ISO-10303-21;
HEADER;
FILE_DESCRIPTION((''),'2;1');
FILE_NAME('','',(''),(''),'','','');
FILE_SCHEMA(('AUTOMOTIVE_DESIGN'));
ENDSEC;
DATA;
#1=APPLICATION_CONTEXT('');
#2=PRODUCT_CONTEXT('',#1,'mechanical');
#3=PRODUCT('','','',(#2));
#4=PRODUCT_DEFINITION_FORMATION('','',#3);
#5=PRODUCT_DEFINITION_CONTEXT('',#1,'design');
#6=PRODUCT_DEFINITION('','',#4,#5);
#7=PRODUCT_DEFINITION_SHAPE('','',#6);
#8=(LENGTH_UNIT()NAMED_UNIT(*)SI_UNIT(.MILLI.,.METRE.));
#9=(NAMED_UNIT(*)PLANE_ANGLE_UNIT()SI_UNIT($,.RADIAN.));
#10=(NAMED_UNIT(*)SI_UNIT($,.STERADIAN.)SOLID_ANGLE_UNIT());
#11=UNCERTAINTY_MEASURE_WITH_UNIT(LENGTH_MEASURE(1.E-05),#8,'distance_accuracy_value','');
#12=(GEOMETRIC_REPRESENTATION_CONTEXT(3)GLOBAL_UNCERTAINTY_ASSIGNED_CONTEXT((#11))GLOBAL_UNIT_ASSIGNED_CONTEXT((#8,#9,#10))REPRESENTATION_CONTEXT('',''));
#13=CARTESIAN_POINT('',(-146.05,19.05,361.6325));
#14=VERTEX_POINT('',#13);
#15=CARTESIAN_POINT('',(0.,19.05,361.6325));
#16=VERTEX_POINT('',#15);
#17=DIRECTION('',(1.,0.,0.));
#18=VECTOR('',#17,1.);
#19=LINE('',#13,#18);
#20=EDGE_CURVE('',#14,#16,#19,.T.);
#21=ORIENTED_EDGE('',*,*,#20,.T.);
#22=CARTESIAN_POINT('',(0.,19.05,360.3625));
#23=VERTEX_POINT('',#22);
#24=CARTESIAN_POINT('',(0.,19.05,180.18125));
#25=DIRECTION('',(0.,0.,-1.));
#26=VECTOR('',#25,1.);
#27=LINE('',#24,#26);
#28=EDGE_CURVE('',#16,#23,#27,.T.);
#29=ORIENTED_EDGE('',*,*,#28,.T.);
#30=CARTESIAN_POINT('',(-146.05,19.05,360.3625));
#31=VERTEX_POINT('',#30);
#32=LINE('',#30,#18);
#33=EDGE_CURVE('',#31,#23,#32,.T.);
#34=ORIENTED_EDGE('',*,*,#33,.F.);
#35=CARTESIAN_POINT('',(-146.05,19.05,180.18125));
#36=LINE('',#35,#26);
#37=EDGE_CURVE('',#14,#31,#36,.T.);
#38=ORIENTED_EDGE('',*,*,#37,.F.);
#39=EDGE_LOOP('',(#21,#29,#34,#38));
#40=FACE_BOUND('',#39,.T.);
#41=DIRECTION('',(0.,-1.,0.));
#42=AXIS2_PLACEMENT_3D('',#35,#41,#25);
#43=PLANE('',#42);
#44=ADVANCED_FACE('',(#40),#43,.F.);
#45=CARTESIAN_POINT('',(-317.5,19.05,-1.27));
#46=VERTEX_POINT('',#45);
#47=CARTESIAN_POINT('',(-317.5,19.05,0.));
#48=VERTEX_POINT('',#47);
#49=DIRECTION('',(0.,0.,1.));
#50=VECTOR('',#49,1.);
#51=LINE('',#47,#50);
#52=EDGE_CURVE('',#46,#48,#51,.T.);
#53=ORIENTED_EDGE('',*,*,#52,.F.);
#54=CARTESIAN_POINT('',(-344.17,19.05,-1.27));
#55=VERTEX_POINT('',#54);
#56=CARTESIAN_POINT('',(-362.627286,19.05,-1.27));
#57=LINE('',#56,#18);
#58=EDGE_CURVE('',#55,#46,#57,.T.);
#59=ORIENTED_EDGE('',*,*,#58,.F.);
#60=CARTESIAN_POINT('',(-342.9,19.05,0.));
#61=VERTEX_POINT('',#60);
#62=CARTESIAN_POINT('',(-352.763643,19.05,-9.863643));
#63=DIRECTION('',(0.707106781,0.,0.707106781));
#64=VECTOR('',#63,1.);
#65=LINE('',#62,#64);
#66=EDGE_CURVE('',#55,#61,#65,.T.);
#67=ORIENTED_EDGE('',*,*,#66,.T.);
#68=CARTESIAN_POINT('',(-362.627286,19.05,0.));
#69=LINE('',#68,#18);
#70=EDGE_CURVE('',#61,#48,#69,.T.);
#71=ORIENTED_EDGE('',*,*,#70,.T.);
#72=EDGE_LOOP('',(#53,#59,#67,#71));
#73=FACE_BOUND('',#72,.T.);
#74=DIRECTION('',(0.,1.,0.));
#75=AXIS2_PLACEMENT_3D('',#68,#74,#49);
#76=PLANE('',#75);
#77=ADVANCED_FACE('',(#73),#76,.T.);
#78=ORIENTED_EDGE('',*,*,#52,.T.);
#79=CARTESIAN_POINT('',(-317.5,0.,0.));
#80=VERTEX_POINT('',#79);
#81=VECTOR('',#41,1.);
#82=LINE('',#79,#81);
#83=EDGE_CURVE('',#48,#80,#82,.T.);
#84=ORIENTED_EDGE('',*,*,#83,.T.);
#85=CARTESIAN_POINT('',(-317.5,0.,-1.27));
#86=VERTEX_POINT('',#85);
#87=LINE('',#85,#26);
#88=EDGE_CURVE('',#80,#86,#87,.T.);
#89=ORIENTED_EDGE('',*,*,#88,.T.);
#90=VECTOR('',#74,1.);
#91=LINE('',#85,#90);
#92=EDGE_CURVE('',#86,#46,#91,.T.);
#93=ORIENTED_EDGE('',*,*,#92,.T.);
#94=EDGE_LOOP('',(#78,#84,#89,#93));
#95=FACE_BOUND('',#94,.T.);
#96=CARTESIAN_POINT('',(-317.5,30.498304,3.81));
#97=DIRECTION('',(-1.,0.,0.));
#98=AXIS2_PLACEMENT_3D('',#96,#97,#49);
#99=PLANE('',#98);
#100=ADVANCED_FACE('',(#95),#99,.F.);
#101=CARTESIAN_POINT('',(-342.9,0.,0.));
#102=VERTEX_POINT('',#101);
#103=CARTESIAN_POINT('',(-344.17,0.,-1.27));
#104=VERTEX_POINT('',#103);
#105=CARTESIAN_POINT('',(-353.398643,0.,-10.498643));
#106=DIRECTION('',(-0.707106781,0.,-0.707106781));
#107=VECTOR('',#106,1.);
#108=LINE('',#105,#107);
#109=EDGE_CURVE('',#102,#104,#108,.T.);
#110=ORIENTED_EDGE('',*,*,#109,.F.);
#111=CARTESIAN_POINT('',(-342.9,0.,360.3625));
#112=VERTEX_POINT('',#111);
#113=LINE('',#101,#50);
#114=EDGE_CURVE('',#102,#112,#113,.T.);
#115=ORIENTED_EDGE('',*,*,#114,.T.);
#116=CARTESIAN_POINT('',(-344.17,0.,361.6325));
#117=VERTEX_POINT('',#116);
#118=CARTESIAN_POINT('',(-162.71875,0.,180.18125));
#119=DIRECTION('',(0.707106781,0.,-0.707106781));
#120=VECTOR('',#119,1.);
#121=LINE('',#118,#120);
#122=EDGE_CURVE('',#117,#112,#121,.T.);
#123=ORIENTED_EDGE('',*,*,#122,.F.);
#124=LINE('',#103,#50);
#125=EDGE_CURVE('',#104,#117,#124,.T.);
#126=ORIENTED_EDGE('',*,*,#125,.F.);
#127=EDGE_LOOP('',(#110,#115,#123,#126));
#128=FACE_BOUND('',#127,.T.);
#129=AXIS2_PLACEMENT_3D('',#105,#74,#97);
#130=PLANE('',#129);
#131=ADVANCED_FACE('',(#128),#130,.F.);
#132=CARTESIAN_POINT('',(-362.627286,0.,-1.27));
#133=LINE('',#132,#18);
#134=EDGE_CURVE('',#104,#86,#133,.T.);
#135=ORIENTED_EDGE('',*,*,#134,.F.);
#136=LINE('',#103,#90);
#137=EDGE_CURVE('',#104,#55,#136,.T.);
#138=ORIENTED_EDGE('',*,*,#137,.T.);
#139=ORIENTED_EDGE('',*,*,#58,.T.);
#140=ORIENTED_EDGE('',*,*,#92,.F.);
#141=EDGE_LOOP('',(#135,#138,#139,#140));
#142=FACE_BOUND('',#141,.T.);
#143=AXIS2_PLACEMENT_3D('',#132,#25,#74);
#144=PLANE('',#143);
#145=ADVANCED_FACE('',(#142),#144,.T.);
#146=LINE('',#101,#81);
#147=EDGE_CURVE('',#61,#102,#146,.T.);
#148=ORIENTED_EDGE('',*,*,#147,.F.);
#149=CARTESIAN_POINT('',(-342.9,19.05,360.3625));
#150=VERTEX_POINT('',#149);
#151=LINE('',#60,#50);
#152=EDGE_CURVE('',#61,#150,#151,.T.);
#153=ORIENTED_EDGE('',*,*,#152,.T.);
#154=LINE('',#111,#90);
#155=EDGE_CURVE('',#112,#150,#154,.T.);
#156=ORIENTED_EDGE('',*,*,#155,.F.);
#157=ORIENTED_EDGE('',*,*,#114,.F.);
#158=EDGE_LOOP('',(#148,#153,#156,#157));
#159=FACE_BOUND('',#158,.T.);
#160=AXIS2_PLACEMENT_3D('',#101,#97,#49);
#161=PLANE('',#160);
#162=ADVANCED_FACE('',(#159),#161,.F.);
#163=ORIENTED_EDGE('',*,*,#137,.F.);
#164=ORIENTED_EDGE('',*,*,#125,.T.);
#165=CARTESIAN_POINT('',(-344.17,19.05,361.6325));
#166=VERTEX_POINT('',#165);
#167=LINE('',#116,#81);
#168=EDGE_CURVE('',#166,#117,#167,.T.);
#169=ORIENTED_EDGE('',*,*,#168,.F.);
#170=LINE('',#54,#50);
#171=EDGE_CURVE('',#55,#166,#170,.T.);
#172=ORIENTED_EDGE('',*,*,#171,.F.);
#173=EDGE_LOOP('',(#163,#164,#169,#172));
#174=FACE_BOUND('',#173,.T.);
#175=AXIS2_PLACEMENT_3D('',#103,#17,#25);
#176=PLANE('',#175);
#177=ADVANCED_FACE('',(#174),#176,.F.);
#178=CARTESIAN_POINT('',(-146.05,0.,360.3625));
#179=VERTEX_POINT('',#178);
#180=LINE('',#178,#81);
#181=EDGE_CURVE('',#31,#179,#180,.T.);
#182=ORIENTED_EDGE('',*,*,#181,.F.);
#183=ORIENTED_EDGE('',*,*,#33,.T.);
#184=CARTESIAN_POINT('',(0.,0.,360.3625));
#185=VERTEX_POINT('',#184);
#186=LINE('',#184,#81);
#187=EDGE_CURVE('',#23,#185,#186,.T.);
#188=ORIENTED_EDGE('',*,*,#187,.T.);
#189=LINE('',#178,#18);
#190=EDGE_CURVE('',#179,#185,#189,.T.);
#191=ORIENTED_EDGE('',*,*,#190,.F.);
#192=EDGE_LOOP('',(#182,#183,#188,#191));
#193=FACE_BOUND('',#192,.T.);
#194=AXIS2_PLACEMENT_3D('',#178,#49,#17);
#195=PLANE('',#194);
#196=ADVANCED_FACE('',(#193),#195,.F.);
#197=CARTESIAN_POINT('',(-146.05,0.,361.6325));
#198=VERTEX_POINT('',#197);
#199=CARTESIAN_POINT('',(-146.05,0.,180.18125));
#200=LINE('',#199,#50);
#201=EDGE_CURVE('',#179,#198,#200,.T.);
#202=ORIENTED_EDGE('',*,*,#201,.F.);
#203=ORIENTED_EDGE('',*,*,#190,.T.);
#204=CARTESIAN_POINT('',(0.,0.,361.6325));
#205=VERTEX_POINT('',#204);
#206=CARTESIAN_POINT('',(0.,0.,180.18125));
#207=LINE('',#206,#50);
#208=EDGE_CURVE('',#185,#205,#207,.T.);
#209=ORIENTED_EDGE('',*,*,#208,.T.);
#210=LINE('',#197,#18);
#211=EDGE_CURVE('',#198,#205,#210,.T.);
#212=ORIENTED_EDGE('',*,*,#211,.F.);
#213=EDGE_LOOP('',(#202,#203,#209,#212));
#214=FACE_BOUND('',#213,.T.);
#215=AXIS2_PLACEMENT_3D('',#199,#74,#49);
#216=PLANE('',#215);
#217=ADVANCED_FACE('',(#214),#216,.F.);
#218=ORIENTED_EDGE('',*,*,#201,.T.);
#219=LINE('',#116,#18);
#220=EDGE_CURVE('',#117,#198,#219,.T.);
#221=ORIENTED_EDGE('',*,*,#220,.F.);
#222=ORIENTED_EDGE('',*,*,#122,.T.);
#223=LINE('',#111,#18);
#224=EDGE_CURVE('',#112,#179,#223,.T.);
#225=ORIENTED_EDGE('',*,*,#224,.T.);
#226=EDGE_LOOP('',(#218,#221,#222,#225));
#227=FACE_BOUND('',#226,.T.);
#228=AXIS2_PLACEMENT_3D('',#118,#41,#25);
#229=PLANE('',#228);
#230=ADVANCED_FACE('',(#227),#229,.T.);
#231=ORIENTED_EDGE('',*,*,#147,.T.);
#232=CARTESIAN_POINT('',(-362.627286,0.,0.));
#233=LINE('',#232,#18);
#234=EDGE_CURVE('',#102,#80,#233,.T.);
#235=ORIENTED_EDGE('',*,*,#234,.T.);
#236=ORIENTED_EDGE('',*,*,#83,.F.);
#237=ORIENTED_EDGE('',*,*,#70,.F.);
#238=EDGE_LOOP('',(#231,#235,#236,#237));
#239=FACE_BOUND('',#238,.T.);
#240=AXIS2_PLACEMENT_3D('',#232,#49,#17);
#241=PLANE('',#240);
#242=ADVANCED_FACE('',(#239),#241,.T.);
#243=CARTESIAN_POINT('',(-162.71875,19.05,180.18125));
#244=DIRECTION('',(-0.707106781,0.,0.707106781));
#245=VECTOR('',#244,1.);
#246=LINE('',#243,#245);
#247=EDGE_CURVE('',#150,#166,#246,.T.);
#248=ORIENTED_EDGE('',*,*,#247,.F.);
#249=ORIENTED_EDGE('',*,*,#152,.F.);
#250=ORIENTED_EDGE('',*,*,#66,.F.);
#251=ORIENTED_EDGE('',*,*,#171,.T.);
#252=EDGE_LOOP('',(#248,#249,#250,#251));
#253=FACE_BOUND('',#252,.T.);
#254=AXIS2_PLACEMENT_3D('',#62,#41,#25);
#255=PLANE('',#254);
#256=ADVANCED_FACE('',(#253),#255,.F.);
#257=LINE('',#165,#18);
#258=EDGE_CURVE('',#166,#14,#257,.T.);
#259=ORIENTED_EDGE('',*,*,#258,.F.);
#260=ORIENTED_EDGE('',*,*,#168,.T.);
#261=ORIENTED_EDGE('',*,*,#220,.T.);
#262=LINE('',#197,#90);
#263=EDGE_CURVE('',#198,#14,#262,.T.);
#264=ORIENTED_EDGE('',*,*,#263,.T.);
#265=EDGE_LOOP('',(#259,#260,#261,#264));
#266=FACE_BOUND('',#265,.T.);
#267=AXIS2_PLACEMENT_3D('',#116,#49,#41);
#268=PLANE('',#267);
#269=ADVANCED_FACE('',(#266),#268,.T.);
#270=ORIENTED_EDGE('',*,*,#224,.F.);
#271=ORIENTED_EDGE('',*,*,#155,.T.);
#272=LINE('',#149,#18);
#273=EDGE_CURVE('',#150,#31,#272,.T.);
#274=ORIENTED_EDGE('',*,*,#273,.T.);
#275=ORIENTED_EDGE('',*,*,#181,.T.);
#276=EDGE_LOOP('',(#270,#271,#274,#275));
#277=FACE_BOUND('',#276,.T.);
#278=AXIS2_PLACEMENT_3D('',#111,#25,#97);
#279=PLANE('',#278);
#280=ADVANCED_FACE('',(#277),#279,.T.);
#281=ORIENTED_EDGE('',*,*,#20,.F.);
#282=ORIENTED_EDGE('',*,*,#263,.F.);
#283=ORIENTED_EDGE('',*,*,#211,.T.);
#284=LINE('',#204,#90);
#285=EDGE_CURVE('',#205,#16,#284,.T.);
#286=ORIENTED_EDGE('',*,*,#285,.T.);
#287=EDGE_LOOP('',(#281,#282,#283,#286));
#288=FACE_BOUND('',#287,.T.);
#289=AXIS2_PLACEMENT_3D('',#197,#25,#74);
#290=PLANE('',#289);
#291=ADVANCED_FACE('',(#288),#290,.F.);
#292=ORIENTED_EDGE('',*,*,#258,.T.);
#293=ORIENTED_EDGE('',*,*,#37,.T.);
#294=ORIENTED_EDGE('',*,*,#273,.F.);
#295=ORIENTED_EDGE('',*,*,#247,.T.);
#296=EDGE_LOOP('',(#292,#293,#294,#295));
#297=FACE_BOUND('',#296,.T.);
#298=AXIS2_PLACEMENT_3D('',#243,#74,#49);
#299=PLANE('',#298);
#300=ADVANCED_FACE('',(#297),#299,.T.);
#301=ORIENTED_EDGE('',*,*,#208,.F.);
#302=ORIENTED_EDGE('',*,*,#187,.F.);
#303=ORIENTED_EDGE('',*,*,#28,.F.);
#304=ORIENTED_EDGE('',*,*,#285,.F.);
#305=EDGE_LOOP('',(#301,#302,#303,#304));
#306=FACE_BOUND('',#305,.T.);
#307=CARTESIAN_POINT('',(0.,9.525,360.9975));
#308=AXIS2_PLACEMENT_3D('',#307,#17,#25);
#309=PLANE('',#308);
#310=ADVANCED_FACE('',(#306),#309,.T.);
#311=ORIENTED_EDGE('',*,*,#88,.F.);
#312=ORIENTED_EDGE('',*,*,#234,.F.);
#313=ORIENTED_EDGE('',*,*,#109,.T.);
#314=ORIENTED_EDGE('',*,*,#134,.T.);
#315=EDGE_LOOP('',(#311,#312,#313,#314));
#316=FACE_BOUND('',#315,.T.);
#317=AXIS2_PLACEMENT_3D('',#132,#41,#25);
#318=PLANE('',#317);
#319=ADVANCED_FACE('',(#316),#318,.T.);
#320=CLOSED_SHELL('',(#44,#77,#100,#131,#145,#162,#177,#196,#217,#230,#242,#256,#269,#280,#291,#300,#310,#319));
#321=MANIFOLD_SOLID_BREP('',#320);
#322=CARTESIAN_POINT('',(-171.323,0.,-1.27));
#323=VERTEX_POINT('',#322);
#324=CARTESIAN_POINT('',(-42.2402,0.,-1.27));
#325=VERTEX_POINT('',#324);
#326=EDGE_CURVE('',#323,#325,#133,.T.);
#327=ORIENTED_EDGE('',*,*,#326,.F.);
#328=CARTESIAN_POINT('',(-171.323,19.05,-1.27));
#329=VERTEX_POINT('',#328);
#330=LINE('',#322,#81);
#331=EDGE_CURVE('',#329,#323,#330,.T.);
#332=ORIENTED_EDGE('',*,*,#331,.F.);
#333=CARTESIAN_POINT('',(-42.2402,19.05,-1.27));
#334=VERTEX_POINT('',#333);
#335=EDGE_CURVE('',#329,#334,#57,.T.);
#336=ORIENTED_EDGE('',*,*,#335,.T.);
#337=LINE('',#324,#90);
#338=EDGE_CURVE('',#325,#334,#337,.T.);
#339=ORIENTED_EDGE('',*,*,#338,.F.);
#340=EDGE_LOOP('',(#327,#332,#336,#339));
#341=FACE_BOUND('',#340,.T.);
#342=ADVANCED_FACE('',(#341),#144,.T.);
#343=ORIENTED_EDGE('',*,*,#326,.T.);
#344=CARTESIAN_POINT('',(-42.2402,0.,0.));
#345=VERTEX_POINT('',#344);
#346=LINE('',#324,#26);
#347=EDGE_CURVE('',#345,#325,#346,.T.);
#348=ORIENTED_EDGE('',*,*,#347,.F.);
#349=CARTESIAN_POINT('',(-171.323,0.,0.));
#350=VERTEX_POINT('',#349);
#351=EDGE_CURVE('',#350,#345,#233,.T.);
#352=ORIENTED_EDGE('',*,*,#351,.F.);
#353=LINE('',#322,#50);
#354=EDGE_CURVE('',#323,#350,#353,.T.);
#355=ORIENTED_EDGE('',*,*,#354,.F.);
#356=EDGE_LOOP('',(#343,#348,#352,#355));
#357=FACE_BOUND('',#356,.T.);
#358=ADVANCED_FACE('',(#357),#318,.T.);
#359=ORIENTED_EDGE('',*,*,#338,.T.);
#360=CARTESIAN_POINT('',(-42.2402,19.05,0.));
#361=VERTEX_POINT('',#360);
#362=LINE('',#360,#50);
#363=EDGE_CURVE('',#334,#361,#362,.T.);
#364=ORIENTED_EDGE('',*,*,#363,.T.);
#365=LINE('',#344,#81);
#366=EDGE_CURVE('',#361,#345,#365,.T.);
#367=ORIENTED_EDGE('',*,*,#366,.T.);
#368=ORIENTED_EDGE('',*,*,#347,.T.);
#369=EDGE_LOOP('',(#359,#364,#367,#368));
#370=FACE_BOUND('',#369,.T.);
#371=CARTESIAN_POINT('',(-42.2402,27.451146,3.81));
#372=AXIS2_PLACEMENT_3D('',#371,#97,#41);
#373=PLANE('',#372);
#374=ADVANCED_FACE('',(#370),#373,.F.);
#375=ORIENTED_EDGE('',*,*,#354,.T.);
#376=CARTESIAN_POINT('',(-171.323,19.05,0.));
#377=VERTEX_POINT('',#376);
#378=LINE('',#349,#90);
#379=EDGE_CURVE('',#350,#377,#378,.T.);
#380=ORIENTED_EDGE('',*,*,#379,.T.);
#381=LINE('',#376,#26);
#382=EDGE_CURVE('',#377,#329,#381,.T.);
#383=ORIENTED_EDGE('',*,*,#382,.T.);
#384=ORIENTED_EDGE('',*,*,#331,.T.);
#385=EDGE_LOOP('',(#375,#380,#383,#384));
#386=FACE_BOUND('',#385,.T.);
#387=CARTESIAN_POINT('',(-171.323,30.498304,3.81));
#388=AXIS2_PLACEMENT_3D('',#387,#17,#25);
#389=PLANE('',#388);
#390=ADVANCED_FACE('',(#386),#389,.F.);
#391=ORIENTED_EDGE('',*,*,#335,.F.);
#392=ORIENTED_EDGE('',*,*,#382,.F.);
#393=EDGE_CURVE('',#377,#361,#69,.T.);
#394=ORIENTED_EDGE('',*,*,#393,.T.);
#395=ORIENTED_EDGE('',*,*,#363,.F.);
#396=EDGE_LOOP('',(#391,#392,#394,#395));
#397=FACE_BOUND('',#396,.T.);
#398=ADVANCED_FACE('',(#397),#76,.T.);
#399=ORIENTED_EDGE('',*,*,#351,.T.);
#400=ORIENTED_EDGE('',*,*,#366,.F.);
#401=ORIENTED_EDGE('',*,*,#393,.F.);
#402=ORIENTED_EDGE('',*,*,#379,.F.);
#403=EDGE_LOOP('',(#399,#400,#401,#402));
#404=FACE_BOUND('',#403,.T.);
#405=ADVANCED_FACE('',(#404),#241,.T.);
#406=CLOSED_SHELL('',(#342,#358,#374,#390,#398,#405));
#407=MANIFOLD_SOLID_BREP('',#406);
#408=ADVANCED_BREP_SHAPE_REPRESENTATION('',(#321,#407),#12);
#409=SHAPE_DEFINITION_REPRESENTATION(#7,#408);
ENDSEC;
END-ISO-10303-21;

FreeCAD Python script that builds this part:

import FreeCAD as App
import Part
import Sketcher
from FreeCAD import Vector
Q = App.Units.Quantity


def add_polygon(sketch, points):
    """Adds a closed chain of lines whose ends are joined by coincident constraints."""
    first, n = sketch.GeometryCount, len(points)
    for a, b in zip(points, points[1:] + points[:1]):
        sketch.addGeometry(Part.LineSegment(App.Vector(*a, 0), App.Vector(*b, 0)), False)
    for i in range(n):
        sketch.addConstraint(Sketcher.Constraint("Coincident", first + i, 2, first + (i + 1) % n, 1))

doc = App.newDocument("Part")
body = doc.addObject("PartDesign::Body", "Body")
body.AllowCompound = True

sketch1 = body.newObject("Sketcher::SketchObject", "Sketch")
sketch1.AttachmentSupport = (doc.getObject("YZ_Plane"), [""])
sketch1.MapMode = "FlatFace"
add_polygon(sketch1, [(19.05, 0), (0, 0), (0, -1.27), (19.05, -1.27)])
sketch1.addConstraint(Sketcher.Constraint("Horizontal", 0))
sketch1.addConstraint(Sketcher.Constraint("Vertical", 1))
sketch1.addConstraint(Sketcher.Constraint("Horizontal", 2))
sketch1.addConstraint(Sketcher.Constraint("Vertical", 3))
sketch1.addConstraint(Sketcher.Constraint("Coincident", 0, 2, -1, 1))
sketch1.addConstraint(Sketcher.Constraint("DistanceX", 0, 2, 0, 1, Q("0.75 in")))
sketch1.addConstraint(Sketcher.Constraint("DistanceY", 1, 2, 1, 1, Q("0.05 in")))

sketch2 = body.newObject("Sketcher::SketchObject", "Sketch001")
sketch2.AttachmentSupport = (doc.getObject("XZ_Plane"), [""])
sketch2.MapMode = "FlatFace"
sketch2.addGeometry(Part.LineSegment(Vector(0, 0, 0), Vector(-342.9, 0, 0)), False)
sketch2.addGeometry(Part.LineSegment(Vector(-342.9, 0, 0), Vector(-342.9, 360.3625, 0)), False)
sketch2.addGeometry(Part.LineSegment(Vector(-342.9, 360.3625, 0), Vector(0, 360.3625, 0)), False)
sketch2.addConstraint(Sketcher.Constraint("Coincident", 0, 2, 1, 1))
sketch2.addConstraint(Sketcher.Constraint("Coincident", 1, 2, 2, 1))
sketch2.addConstraint(Sketcher.Constraint("Horizontal", 0))
sketch2.addConstraint(Sketcher.Constraint("Vertical", 1))
sketch2.addConstraint(Sketcher.Constraint("Horizontal", 2))
sketch2.addConstraint(Sketcher.Constraint("Coincident", 0, 1, -1, 1))
sketch2.addConstraint(Sketcher.Constraint("PointOnObject", 2, 2, -2))
sketch2.addConstraint(Sketcher.Constraint("DistanceX", 0, 2, 0, 1, Q("13.5 in")))
sketch2.addConstraint(Sketcher.Constraint("DistanceY", 1, 1, 1, 2, Q("14.1875 in")))
doc.recompute()

additivepipe = body.newObject("PartDesign::AdditivePipe", "AdditivePipe")
additivepipe.Profile = sketch1
additivepipe.Spine = (sketch2, ["Edge1", "Edge2", "Edge3"])
additivepipe.Transition = "Right corner"

sketch3 = body.newObject("Sketcher::SketchObject", "Sketch002")
sketch3.AttachmentSupport = (doc.getObject("XY_Plane"), [""])
sketch3.MapMode = "FlatFace"
sketch3.AttachmentOffset = App.Placement(Vector(0, 0, -0.05 * 25.4), App.Rotation())
add_polygon(sketch3, [(0, 27.451146), (0, -3.132005), (-42.2402, -3.132005), (-42.2402, 27.451146)])
add_polygon(sketch3, [(-171.323, 30.498304), (-171.323, -6.783216), (-317.5, -6.783216), (-317.5, 30.498304)])
sketch3.addConstraint(Sketcher.Constraint("Vertical", 0))
sketch3.addConstraint(Sketcher.Constraint("Horizontal", 1))
sketch3.addConstraint(Sketcher.Constraint("Vertical", 2))
sketch3.addConstraint(Sketcher.Constraint("Horizontal", 3))
sketch3.addConstraint(Sketcher.Constraint("Vertical", 4))
sketch3.addConstraint(Sketcher.Constraint("Horizontal", 5))
sketch3.addConstraint(Sketcher.Constraint("Vertical", 6))
sketch3.addConstraint(Sketcher.Constraint("Horizontal", 7))
sketch3.addConstraint(Sketcher.Constraint("PointOnObject", 0, 2, -2))
sketch3.addConstraint(Sketcher.Constraint("DistanceX", 5, 2, -1, 1, Q("12.5 in")))
sketch3.addConstraint(Sketcher.Constraint("DistanceX", 1, 2, 1, 1, Q("1.663 in")))
sketch3.addConstraint(Sketcher.Constraint("DistanceX", 5, 2, 5, 1, Q("5.755 in")))
sketch3.addConstraint(Sketcher.Constraint("DistanceY", 0, 2, 0, 1, 30.583151))
sketch3.addConstraint(Sketcher.Constraint("DistanceY", 4, 2, 4, 1, 37.28152))
sketch3.addConstraint(Sketcher.Constraint("DistanceY", 4, 2, 1, 2, 3.651211))
sketch3.addConstraint(Sketcher.Constraint("DistanceY", 0, 2, -1, 1, 3.132005))
pocket1 = body.newObject("PartDesign::Pocket", "Pocket")
pocket1.Profile = sketch3
pocket1.Length = Q("0.2 in")
pocket1.Reversed = True

doc.recompute()
